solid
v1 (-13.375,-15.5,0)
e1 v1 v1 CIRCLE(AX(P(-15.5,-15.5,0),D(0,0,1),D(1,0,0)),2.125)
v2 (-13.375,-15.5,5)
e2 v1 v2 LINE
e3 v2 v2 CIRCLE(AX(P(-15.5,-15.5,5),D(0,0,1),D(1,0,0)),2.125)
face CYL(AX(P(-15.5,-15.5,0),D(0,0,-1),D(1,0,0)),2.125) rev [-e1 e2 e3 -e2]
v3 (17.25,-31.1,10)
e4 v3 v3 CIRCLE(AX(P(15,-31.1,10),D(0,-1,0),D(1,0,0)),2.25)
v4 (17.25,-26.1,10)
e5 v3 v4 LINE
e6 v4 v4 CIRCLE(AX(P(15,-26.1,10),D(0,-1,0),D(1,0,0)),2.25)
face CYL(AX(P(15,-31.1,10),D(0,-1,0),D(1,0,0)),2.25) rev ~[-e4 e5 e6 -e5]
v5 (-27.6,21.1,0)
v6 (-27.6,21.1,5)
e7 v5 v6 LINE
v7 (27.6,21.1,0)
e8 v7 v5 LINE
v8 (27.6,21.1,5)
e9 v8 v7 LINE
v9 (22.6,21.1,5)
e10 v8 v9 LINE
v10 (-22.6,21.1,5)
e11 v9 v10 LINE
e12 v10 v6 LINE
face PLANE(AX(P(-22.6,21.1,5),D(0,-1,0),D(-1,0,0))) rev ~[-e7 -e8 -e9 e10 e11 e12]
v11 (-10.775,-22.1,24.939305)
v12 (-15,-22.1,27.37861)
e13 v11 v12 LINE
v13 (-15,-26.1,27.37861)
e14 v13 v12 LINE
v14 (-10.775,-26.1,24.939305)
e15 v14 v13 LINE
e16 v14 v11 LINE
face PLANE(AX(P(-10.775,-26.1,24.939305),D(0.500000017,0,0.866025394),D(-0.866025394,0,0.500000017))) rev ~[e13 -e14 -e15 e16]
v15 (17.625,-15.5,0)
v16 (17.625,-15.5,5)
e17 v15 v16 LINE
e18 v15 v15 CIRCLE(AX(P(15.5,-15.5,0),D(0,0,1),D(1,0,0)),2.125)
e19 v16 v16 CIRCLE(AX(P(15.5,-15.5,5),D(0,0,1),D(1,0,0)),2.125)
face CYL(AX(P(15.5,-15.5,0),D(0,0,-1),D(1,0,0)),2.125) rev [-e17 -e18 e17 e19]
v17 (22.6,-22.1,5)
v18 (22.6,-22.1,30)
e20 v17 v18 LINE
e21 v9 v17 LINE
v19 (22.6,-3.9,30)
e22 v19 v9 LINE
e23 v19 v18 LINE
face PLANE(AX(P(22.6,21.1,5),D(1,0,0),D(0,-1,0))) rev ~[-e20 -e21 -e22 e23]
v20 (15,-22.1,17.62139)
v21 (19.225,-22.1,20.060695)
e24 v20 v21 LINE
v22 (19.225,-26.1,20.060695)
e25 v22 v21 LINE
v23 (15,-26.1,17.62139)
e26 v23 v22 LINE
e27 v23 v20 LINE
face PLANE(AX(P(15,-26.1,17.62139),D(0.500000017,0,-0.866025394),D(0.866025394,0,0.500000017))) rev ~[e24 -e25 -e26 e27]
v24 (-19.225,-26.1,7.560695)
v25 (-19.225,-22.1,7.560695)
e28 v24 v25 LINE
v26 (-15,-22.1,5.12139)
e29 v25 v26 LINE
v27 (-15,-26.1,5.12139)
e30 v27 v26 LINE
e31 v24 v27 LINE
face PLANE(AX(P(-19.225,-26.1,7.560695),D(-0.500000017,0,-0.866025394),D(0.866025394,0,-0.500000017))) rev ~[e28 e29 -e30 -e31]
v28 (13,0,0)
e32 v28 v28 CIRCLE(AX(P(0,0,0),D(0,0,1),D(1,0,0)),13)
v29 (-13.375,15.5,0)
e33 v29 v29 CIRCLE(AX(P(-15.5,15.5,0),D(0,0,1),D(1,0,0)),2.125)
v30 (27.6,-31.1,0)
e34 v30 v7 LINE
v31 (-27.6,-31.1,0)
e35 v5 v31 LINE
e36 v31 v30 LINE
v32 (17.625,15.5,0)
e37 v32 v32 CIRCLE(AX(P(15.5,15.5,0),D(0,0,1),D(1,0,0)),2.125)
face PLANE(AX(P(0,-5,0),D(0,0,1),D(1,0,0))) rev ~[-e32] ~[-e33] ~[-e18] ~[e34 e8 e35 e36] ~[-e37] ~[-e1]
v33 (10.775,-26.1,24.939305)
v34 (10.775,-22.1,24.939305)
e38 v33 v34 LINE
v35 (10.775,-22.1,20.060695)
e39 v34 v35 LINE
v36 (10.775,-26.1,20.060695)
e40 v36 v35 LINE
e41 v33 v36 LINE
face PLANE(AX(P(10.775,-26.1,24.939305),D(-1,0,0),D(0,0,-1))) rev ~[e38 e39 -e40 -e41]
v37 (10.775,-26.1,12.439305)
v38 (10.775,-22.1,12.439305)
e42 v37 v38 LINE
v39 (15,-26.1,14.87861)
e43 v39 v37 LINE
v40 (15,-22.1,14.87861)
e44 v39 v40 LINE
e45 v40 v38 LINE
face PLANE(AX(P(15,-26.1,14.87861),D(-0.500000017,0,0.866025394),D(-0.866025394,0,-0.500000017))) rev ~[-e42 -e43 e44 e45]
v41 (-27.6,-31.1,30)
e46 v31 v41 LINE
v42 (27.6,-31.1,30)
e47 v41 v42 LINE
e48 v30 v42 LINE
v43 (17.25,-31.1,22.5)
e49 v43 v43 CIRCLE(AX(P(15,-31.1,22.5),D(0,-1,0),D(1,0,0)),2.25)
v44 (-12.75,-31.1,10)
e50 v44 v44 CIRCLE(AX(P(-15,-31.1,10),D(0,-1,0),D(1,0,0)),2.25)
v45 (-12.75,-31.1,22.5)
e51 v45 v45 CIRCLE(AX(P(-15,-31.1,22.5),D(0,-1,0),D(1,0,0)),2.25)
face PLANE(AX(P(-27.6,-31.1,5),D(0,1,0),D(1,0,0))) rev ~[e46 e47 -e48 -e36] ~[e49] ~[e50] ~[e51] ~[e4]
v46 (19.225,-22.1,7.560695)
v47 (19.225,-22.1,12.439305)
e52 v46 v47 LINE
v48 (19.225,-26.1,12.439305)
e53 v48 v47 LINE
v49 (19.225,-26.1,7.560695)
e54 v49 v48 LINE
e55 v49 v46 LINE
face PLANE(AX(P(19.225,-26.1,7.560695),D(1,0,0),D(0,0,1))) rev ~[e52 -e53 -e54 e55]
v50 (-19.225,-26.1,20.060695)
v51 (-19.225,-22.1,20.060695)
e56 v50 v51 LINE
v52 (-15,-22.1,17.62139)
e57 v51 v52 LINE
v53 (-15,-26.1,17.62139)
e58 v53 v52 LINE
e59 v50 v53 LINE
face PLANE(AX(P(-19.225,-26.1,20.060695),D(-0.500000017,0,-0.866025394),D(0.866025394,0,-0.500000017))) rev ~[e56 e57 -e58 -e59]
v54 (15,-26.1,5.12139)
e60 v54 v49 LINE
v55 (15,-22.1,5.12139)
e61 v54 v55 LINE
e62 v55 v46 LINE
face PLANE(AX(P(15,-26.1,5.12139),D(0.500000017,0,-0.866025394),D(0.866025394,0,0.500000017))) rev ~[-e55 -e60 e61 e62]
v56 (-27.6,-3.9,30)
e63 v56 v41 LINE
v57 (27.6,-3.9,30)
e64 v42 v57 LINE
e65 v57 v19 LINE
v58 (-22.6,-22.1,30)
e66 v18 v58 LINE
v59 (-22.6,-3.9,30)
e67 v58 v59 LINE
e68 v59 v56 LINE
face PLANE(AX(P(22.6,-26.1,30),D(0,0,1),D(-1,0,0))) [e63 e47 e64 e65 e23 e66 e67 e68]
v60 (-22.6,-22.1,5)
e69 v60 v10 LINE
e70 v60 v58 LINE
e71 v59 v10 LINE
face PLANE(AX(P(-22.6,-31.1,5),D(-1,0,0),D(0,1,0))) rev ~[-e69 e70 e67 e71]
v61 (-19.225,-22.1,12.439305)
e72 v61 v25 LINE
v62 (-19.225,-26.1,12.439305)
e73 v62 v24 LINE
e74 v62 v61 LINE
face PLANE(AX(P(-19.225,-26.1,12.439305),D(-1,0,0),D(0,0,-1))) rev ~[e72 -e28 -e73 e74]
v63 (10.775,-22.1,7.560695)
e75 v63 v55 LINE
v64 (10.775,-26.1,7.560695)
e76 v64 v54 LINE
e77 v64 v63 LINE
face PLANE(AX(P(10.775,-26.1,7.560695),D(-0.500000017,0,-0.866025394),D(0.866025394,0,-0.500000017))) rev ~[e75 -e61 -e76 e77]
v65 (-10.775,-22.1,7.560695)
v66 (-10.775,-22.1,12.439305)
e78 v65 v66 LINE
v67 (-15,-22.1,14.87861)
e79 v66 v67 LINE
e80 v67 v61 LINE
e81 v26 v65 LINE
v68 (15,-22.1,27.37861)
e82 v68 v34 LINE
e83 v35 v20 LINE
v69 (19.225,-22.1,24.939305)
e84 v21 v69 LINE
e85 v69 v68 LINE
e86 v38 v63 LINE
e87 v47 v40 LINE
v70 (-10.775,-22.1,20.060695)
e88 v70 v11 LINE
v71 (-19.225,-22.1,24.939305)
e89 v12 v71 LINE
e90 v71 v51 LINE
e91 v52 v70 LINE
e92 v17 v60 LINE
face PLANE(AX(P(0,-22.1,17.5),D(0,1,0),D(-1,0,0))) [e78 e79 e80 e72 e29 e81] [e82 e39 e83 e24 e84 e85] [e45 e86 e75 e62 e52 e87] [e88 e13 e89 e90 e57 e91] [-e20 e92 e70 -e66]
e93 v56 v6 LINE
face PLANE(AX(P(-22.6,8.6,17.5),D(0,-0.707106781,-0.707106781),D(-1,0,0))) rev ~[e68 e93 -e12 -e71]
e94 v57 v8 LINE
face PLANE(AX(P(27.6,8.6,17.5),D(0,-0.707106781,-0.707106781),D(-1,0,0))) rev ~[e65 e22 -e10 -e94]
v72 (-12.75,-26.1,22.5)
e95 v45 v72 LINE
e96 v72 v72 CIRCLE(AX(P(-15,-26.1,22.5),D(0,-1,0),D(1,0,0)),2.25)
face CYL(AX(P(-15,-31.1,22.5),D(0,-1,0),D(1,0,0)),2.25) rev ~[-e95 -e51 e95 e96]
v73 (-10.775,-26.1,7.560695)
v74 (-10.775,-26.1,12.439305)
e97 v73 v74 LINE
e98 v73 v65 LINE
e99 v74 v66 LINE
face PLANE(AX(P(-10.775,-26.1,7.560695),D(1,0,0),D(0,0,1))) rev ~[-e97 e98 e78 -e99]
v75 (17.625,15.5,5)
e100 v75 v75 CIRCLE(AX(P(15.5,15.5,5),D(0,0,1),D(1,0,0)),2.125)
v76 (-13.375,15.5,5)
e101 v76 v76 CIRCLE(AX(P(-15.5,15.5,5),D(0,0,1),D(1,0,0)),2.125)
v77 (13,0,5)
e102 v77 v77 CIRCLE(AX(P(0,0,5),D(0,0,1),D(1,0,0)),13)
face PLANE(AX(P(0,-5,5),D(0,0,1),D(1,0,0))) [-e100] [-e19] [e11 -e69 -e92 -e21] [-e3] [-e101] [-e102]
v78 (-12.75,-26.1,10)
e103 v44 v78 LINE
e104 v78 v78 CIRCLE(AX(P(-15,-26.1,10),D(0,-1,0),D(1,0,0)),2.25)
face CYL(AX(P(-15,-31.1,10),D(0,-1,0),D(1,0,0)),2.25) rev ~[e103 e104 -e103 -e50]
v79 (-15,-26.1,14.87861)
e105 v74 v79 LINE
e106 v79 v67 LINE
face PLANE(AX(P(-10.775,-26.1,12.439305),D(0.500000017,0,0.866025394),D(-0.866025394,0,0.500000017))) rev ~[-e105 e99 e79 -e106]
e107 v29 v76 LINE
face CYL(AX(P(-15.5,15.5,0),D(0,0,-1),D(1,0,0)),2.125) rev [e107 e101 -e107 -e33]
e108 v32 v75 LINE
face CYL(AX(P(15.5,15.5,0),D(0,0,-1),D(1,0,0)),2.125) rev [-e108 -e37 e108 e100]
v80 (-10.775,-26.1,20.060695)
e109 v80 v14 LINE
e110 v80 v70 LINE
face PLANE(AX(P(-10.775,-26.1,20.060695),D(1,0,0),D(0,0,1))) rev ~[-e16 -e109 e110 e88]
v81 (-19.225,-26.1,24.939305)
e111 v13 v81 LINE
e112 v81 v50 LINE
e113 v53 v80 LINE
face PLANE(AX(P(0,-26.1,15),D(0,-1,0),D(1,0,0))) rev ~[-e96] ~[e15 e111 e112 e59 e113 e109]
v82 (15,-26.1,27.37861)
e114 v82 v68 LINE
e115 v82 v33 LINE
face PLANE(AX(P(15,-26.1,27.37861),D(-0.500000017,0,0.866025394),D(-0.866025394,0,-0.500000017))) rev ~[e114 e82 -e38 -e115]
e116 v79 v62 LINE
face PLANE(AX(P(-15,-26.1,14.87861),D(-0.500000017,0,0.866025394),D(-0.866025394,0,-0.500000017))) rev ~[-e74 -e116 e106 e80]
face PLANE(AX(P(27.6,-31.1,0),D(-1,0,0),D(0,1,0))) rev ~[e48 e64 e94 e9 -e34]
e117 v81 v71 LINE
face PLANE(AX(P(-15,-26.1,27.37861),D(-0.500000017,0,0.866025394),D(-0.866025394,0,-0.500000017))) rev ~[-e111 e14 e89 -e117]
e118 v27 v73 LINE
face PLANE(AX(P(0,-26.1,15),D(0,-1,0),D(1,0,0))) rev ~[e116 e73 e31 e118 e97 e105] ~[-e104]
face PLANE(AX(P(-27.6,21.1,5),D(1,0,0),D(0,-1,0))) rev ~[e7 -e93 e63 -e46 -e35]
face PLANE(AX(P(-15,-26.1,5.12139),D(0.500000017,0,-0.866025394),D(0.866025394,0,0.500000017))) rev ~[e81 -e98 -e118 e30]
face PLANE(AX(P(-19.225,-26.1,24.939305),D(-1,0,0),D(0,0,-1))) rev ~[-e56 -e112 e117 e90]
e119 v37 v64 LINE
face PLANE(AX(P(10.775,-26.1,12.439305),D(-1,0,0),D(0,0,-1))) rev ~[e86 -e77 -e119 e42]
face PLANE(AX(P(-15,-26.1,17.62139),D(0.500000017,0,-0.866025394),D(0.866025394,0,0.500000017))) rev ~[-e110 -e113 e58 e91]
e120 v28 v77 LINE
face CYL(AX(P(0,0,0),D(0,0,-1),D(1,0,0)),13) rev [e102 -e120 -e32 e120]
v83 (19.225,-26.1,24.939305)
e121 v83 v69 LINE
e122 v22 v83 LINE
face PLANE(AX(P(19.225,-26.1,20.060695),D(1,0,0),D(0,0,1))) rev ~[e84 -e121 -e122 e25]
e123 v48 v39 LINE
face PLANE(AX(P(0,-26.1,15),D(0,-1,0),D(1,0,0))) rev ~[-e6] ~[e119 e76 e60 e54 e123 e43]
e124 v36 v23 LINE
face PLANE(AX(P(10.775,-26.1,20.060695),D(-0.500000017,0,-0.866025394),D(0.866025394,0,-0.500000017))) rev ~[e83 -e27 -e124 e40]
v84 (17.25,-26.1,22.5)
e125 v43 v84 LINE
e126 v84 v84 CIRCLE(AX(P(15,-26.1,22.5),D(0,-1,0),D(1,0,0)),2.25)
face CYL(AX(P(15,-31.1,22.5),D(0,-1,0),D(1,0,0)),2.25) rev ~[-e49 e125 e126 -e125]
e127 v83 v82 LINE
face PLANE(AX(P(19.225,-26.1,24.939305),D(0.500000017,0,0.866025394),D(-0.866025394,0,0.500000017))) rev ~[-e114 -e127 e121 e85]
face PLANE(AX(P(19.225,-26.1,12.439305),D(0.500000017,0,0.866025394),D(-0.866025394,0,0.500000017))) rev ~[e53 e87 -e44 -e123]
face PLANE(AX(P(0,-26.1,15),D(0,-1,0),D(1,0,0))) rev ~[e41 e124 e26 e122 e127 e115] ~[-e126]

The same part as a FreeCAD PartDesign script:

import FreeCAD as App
import Part
import Sketcher
from FreeCAD import Vector
Q = App.Units.Quantity


def edges_at(feature, points):
    """Names of the edges that pass closest to the given points."""
    edges = feature.Shape.Edges
    near = lambda p: min(range(len(edges)), key=lambda i: edges[i].distToShape(Part.Vertex(*p))[0])
    return sorted({f"Edge{near(p) + 1}" for p in points})


def add_polygon(sketch, points):
    """Adds a closed chain of lines whose ends are joined by coincident constraints."""
    first, n = sketch.GeometryCount, len(points)
    for a, b in zip(points, points[1:] + points[:1]):
        sketch.addGeometry(Part.LineSegment(App.Vector(*a, 0), App.Vector(*b, 0)), False)
    for i in range(n):
        sketch.addConstraint(Sketcher.Constraint("Coincident", first + i, 2, first + (i + 1) % n, 1))

doc = App.newDocument("Part")
body = doc.addObject("PartDesign::Body", "Body")

# Sketch on XY plane
sketch1 = body.newObject("Sketcher::SketchObject", "Sketch")
sketch1.AttachmentSupport = (doc.getObject("XY_Plane"), [""])
sketch1.MapMode = "FlatFace"
add_polygon(sketch1, [(27.6, 21.1), (-27.6, 21.1), (-27.6, -31.1), (27.6, -31.1)])  # lines 0-3
sketch1.addGeometry(Part.Circle(Vector(-15.5, -15.5, 0), Vector(0, 0, 1), 2.1), False)  # 4
sketch1.addGeometry(Part.Circle(Vector(15.5, -15.5, 0), Vector(0, 0, 1), 2.1), False)  # 5
sketch1.addGeometry(Part.Circle(Vector(-15.5, 15.5, 0), Vector(0, 0, 1), 2.1), False)  # 6
sketch1.addGeometry(Part.Circle(Vector(0, 0, 0), Vector(0, 0, 1), 13), False)  # 7
sketch1.addGeometry(Part.Circle(Vector(15.5, 15.5, 0), Vector(0, 0, 1), 2.1), False)  # 8
sketch1.addConstraint([
    Sketcher.Constraint("Horizontal", 0),
    Sketcher.Constraint("Vertical", 1),
    Sketcher.Constraint("Horizontal", 2),
    Sketcher.Constraint("Vertical", 3),
    Sketcher.Constraint("Coincident", 7, 3, -1, 1),
    Sketcher.Constraint("Equal", 4, 5),
    Sketcher.Constraint("Equal", 5, 6),
    Sketcher.Constraint("Equal", 6, 8),
    Sketcher.Constraint("Symmetric", 5, 3, 6, 3, -1, 1),
    Sketcher.Constraint("Symmetric", 4, 3, 8, 3, -1, 1),
    Sketcher.Constraint("Symmetric", 4, 3, 5, 3, -2),
    Sketcher.Constraint("Diameter", 7, 26.0),
    Sketcher.Constraint("Diameter", 4, 4.25),
    Sketcher.Constraint("DistanceX", 0, 2, 0, 1, 55.2),
    Sketcher.Constraint("DistanceY", 1, 2, 1, 1, 52.2),
    Sketcher.Constraint("DistanceX", 4, 3, 5, 3, 31.0),
    Sketcher.Constraint("DistanceY", 4, 3, 6, 3, 31.0),
    Sketcher.Constraint("DistanceX", 0, 2, -1, 1, 27.6),
    Sketcher.Constraint("DistanceY", -1, 1, 0, 2, 21.1),
])
pad1 = body.newObject("PartDesign::Pad", "Pad")
pad1.Profile = sketch1
pad1.Length = 5

# Sketch on XY plane
sketch2 = body.newObject("Sketcher::SketchObject", "Sketch001")
sketch2.AttachmentSupport = (doc.getObject("XY_Plane"), [""])
sketch2.MapMode = "FlatFace"
sketch2.AttachmentOffset = App.Placement(Vector(0, 0, 5), App.Rotation())
add_polygon(sketch2, [(-23, 21), (-28, 21), (-28, -31), (-23, -31)])  # lines 0-3
add_polygon(sketch2, [(28, 21), (23, 21), (23, -31), (28, -31)])  # lines 4-7
sketch2.addConstraint([
    Sketcher.Constraint("Horizontal", 0),
    Sketcher.Constraint("Vertical", 1),
    Sketcher.Constraint("Horizontal", 2),
    Sketcher.Constraint("Vertical", 3),
    Sketcher.Constraint("Horizontal", 4),
    Sketcher.Constraint("Vertical", 5),
    Sketcher.Constraint("Horizontal", 6),
    Sketcher.Constraint("Vertical", 7),
    Sketcher.Constraint("Symmetric", 3, 2, 4, 2, -2),
    Sketcher.Constraint("Symmetric", 1, 2, 6, 2, -2),
    Sketcher.Constraint("DistanceX", 0, 2, 0, 1, 5.0),
    Sketcher.Constraint("DistanceY", 1, 2, 1, 1, 52.2),
    Sketcher.Constraint("DistanceX", 0, 2, -1, 1, 27.6),
    Sketcher.Constraint("DistanceY", -1, 1, 0, 2, 21.1),
])
pad2 = body.newObject("PartDesign::Pad", "Pad001")
pad2.Profile = sketch2
pad2.Length = 25

# Sketch on XZ plane
sketch3 = body.newObject("Sketcher::SketchObject", "Sketch002")
sketch3.AttachmentSupport = (doc.getObject("XZ_Plane"), [""])
sketch3.MapMode = "FlatFace"
sketch3.AttachmentOffset = App.Placement(Vector(0, 0, 31.1), App.Rotation())
add_polygon(sketch3, [(-27.6, 30), (-27.6, 0), (27.6, 0), (27.6, 30)])  # lines 0-3
sketch3.addGeometry(Part.Circle(Vector(-15, 10, 0), Vector(0, 0, 1), 2.2), False)  # 4
sketch3.addGeometry(Part.Circle(Vector(15, 10, 0), Vector(0, 0, 1), 2.2), False)  # 5
sketch3.addGeometry(Part.Circle(Vector(-15, 22.5, 0), Vector(0, 0, 1), 2.2), False)  # 6
sketch3.addGeometry(Part.Circle(Vector(15, 22.5, 0), Vector(0, 0, 1), 2.2), False)  # 7
sketch3.addConstraint([
    Sketcher.Constraint("Vertical", 0),
    Sketcher.Constraint("Horizontal", 1),
    Sketcher.Constraint("Vertical", 2),
    Sketcher.Constraint("Horizontal", 3),
    Sketcher.Constraint("Equal", 4, 5),
    Sketcher.Constraint("Equal", 5, 6),
    Sketcher.Constraint("Equal", 6, 7),
    Sketcher.Constraint("Symmetric", 0, 2, 1, 2, -1, 1),
    Sketcher.Constraint("Symmetric", 4, 3, 5, 3, -2),
    Sketcher.Constraint("Symmetric", 6, 3, 7, 3, -2),
    Sketcher.Constraint("Vertical", 4, 3, 6, 3),
    Sketcher.Constraint("Diameter", 4, 4.5),
    Sketcher.Constraint("DistanceY", 0, 2, 0, 1, 30.0),
    Sketcher.Constraint("DistanceX", 1, 1, 1, 2, 55.2),
    Sketcher.Constraint("DistanceX", 4, 3, -1, 1, 15.0),
    Sketcher.Constraint("DistanceY", -1, 1, 4, 3, 10.0),
    Sketcher.Constraint("DistanceY", -1, 1, 6, 3, 22.5),
])
pad3 = body.newObject("PartDesign::Pad", "Pad002")
pad3.Profile = sketch3
pad3.Length = 5
pad3.Reversed = True

# Sketch on XZ plane
sketch4 = body.newObject("Sketcher::SketchObject", "Sketch003")
sketch4.AttachmentSupport = (doc.getObject("XZ_Plane"), [""])
sketch4.MapMode = "FlatFace"
sketch4.AttachmentOffset = App.Placement(Vector(0, 0, 26.1), App.Rotation())
add_polygon(sketch4, [(22.6, 30), (22.6, 5), (-22.6, 5), (-22.6, 30)])  # lines 0-3
add_polygon(sketch4, [(19.2, 12.4), (15, 14.9), (10.8, 12.4), (10.8, 7.6), (15, 5.1), (19.2, 7.6)])  # lines 4-9
add_polygon(sketch4, [(-15, 5.1), (-10.8, 7.6), (-10.8, 12.4), (-15, 14.9), (-19.2, 12.4), (-19.2, 7.6)])  # lines 10-15
add_polygon(sketch4, [(19.2, 24.9), (15, 27.4), (10.8, 24.9), (10.8, 20.1), (15, 17.6), (19.2, 20.1)])  # lines 16-21
add_polygon(sketch4, [(-10.8, 20.1), (-10.8, 24.9), (-15, 27.4), (-19.2, 24.9), (-19.2, 20.1), (-15, 17.6)])  # lines 22-27
sketch4.addConstraint([
    Sketcher.Constraint("Vertical", 0),
    Sketcher.Constraint("Horizontal", 1),
    Sketcher.Constraint("Vertical", 2),
    Sketcher.Constraint("Horizontal", 3),
    Sketcher.Constraint("Vertical", 6),
    Sketcher.Constraint("Vertical", 9),
    Sketcher.Constraint("Vertical", 11),
    Sketcher.Constraint("Vertical", 14),
    Sketcher.Constraint("Vertical", 18),
    Sketcher.Constraint("Vertical", 21),
    Sketcher.Constraint("Vertical", 22),
    Sketcher.Constraint("Vertical", 25),
    Sketcher.Constraint("Symmetric", 6, 2, 10, 2, -2),
    Sketcher.Constraint("Symmetric", 4, 2, 12, 2, -2),
    Sketcher.Constraint("Symmetric", 9, 2, 13, 2, -2),
    Sketcher.Constraint("Symmetric", 7, 2, 15, 2, -2),
    Sketcher.Constraint("Symmetric", 17, 2, 22, 2, -2),
    Sketcher.Constraint("Symmetric", 16, 2, 23, 2, -2),
    Sketcher.Constraint("Symmetric", 21, 2, 24, 2, -2),
    Sketcher.Constraint("Symmetric", 19, 2, 26, 2, -2),
    Sketcher.Constraint("Parallel", 4, 7),
    Sketcher.Constraint("Parallel", 5, 8),
    Sketcher.Constraint("Parallel", 8, 10),
    Sketcher.Constraint("Parallel", 7, 12),
    Sketcher.Constraint("Parallel", 12, 15),
    Sketcher.Constraint("Parallel", 15, 16),
    Sketcher.Constraint("Parallel", 13, 17),
    Sketcher.Constraint("Parallel", 16, 19),
    Sketcher.Constraint("Parallel", 17, 20),
    Sketcher.Constraint("Parallel", 23, 26),
    Sketcher.Constraint("Parallel", 24, 27),
    Sketcher.Constraint("Horizontal", 6, 2, 8, 2),
    Sketcher.Constraint("Horizontal", 5, 2, 9, 2),
    Sketcher.Constraint("Horizontal", 18, 2, 20, 2),
    Sketcher.Constraint("Horizontal", 17, 2, 21, 2),
    Sketcher.Constraint("Vertical", 7, 2, 16, 2),
    Sketcher.Constraint("Vertical", 6, 2, 17, 2),
    Sketcher.Constraint("Equal", 14, 18),
    Sketcher.Constraint("DistanceY", 0, 2, 0, 1, 25.0),
    Sketcher.Constraint("Angle", 4, Q("149.999999 deg")),
    Sketcher.Constraint("DistanceX", 1, 2, 1, 1, 45.2),
    Sketcher.Constraint("DistanceY", -1, 1, 0, 2, 5.0),
    Sketcher.Constraint("DistanceX", -1, 1, 4, 2, 15.0),
    Sketcher.Constraint("DistanceX", -1, 1, 0, 2, 22.6),
    Sketcher.Constraint("DistanceY", 4, 2, 16, 2, 12.5),
    Sketcher.Constraint("DistanceX", 6, 2, 8, 2, 8.45),
    Sketcher.Constraint("DistanceY", 6, 2, 6, 1, 4.87861),
    Sketcher.Constraint("DistanceY", -1, 1, 4, 2, 14.87861),
])
pad4 = body.newObject("PartDesign::Pad", "Pad003")
pad4.Profile = sketch4
pad4.Length = 4
pad4.Reversed = True
doc.recompute()

chamfer = body.newObject("PartDesign::Chamfer", "Chamfer")
chamfer.Base = (pad4, edges_at(pad4, [(-25.1, 21.1, 30), (25.1, 21.1, 30)]))
chamfer.Size = 25

doc.recompute()
